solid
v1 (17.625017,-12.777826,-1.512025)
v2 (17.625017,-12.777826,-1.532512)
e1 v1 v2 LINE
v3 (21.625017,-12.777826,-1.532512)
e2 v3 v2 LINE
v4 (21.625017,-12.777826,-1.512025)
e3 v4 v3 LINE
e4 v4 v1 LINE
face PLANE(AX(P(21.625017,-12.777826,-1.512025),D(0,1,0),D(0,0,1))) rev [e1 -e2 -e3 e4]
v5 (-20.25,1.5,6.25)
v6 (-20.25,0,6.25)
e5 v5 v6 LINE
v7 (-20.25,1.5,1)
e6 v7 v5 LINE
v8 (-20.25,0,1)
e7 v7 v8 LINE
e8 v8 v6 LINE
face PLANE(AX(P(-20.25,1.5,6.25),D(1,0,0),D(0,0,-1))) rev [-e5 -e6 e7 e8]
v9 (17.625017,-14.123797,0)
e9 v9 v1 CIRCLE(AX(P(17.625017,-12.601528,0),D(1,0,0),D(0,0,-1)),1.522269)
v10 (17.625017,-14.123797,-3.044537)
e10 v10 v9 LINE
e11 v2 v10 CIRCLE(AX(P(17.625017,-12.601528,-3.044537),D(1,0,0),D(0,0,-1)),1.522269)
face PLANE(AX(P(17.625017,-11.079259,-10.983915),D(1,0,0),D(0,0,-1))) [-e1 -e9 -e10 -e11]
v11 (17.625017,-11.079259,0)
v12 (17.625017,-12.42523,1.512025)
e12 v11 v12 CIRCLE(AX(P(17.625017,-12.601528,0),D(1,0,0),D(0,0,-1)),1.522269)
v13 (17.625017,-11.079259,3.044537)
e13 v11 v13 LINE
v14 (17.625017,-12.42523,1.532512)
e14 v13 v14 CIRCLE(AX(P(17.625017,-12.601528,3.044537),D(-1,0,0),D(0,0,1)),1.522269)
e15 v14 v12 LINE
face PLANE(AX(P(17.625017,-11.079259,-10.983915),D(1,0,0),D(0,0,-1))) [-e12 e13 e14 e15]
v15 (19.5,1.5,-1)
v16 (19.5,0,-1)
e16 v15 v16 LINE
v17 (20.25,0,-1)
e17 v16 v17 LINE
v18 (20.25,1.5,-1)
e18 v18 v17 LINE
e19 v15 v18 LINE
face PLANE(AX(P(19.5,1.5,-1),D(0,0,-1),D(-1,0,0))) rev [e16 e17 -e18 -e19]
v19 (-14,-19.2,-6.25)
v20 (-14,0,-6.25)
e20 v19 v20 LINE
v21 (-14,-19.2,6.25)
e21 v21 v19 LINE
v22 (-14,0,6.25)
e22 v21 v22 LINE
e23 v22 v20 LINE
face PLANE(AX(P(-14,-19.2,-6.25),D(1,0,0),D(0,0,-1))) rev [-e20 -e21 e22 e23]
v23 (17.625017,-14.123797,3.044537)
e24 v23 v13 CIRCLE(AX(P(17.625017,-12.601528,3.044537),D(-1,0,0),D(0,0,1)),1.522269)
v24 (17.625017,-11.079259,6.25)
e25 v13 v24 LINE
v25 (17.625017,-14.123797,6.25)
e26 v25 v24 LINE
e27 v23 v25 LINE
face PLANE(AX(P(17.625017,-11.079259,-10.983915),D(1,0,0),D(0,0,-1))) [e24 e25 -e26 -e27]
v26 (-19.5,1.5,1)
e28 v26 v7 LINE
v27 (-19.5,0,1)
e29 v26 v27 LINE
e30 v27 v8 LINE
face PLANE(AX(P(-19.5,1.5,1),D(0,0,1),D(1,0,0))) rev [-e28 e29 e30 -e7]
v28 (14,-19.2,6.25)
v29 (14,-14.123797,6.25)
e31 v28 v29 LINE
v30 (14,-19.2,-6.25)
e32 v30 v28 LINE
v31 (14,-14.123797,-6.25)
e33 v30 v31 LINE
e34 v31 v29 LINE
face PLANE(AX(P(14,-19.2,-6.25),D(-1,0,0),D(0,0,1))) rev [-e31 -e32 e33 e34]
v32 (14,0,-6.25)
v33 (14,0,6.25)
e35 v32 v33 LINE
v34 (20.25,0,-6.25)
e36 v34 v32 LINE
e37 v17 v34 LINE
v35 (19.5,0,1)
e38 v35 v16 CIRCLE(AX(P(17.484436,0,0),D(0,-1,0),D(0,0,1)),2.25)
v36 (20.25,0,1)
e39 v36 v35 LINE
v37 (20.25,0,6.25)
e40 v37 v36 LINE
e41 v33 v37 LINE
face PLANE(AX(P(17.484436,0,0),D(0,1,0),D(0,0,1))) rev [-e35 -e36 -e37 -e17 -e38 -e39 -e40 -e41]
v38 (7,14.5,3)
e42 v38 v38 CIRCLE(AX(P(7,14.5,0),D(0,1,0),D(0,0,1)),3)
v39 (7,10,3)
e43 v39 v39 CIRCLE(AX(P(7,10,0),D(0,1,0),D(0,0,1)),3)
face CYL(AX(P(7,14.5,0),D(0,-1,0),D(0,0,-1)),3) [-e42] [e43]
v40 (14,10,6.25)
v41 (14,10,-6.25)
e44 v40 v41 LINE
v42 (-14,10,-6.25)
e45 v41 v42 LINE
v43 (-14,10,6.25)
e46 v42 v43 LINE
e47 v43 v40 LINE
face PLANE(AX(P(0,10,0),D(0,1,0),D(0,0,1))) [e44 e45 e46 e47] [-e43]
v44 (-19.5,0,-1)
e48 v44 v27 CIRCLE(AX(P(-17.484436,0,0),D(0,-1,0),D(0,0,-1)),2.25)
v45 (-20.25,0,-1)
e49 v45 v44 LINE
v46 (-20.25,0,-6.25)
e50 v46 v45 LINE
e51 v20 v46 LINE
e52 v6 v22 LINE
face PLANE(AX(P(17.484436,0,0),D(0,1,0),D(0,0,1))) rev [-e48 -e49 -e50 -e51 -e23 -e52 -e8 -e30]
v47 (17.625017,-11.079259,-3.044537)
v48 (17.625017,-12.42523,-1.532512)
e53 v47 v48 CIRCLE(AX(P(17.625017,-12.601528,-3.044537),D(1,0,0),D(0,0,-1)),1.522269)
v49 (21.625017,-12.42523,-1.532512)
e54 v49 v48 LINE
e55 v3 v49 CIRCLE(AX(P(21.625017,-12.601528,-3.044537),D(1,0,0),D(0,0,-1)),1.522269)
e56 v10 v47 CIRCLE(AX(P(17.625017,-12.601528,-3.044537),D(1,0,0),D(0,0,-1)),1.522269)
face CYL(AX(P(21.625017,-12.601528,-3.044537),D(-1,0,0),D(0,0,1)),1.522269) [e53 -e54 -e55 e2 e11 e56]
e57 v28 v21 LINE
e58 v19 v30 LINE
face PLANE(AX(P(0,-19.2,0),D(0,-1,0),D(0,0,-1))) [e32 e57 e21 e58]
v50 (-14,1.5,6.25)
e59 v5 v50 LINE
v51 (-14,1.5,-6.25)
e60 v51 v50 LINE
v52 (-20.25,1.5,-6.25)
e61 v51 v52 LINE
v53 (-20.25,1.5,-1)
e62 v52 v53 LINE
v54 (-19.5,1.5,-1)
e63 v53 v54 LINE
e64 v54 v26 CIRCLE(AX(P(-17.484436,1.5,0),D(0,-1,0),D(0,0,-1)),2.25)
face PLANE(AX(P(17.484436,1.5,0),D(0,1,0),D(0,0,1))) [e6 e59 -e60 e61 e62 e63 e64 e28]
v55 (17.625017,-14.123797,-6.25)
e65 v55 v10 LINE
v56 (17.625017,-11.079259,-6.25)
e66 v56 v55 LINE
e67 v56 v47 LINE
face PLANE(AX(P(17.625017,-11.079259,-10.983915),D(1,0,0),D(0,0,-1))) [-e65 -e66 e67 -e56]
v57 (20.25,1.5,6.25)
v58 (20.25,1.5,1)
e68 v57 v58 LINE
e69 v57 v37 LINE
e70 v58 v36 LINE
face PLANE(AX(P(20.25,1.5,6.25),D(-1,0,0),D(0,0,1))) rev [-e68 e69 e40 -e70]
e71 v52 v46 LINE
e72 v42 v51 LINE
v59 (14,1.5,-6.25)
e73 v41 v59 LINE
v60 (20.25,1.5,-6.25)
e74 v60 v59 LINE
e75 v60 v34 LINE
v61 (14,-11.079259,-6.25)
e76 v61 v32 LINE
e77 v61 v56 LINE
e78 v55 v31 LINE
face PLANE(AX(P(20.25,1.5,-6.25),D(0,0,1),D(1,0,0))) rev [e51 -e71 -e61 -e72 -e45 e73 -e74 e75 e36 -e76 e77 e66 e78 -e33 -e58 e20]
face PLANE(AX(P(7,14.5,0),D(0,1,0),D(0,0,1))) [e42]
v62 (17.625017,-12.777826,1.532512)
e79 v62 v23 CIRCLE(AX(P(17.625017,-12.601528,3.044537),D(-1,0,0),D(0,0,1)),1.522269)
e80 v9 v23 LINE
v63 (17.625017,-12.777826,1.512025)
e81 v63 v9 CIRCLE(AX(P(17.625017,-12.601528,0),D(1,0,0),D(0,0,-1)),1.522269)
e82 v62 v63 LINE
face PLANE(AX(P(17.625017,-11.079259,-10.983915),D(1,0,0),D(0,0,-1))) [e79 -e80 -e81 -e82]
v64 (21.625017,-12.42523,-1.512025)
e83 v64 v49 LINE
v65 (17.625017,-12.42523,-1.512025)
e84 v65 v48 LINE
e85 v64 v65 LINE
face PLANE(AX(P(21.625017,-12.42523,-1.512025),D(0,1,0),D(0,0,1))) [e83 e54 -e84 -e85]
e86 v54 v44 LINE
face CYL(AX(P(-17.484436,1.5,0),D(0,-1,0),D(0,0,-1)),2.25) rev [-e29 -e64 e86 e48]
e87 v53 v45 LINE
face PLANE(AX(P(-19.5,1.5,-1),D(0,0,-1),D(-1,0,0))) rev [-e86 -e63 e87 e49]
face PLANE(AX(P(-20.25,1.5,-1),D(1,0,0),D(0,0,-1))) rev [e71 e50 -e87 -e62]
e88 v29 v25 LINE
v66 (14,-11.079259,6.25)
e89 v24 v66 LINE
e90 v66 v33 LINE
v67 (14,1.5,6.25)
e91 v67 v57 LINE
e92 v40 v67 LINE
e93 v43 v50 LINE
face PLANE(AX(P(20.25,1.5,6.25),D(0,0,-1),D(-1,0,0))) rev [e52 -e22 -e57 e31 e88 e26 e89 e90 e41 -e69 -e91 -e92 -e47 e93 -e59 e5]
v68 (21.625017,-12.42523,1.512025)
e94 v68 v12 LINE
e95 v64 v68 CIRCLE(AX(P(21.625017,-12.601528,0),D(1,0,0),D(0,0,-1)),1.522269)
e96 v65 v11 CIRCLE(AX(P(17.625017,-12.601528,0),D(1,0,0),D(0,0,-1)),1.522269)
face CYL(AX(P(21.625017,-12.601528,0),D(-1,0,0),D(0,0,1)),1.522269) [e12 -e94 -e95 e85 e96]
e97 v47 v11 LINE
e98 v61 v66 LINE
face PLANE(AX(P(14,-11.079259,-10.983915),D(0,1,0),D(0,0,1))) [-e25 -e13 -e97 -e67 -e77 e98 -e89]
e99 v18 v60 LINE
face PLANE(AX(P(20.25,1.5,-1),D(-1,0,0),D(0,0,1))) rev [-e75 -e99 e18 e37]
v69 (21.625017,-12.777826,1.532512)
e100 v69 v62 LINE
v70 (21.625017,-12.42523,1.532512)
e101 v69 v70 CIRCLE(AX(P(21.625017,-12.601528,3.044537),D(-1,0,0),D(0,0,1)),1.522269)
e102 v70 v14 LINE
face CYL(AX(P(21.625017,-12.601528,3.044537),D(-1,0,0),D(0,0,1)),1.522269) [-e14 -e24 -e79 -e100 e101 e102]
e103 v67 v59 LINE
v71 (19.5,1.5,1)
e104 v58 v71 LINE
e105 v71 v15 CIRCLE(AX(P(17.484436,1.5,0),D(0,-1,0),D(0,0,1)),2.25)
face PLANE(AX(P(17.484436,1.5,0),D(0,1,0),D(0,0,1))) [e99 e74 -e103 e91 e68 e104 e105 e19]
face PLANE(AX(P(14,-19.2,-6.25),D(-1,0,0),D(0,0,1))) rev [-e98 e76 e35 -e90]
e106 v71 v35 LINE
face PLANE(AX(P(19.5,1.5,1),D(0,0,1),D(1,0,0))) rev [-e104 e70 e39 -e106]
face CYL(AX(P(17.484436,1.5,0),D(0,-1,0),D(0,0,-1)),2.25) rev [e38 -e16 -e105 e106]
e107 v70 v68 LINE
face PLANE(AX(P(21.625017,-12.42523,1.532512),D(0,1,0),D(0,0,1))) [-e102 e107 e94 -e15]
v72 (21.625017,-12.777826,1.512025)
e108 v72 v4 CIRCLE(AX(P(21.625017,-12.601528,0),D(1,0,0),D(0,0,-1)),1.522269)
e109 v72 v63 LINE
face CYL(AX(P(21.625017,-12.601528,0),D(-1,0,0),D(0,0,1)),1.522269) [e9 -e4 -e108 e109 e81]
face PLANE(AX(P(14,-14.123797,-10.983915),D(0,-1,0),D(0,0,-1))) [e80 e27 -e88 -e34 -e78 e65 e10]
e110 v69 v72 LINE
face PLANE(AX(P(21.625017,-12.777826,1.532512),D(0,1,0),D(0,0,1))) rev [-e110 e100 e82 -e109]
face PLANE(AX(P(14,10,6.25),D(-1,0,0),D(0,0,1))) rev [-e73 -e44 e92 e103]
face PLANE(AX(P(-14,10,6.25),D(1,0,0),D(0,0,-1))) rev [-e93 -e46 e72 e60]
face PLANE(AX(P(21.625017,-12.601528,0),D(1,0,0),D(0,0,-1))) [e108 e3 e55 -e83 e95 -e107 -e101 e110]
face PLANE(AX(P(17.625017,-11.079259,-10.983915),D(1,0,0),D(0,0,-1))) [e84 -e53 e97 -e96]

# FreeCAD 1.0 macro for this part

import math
import FreeCAD as App
import Part
import Sketcher
Q = App.Units.Quantity


def add_polygon(sketch, points):
    """Adds a closed chain of lines whose ends are joined by coincident constraints."""
    first, n = sketch.GeometryCount, len(points)
    for a, b in zip(points, points[1:] + points[:1]):
        sketch.addGeometry(Part.LineSegment(App.Vector(*a, 0), App.Vector(*b, 0)), False)
    for i in range(n):
        sketch.addConstraint(Sketcher.Constraint("Coincident", first + i, 2, first + (i + 1) % n, 1))

doc = App.newDocument("Part")
body = doc.addObject("PartDesign::Body", "Body")

# Sketch on XZ plane
sketch1 = body.newObject("Sketcher::SketchObject", "Sketch")
sketch1.AttachmentSupport = (doc.getObject("XZ_Plane"), [""])
sketch1.MapMode = "FlatFace"
sketch1.addGeometry(Part.LineSegment(App.Vector(-20.2, 6.2, 0), App.Vector(20.2, 6.2, 0)), False)
sketch1.addGeometry(Part.LineSegment(App.Vector(20.2, 6.2, 0), App.Vector(20.2, 1, 0)), False)
sketch1.addGeometry(Part.LineSegment(App.Vector(20.2, 1, 0), App.Vector(19.5, 1, 0)), False)
sketch1.addGeometry(Part.ArcOfCircle(Part.Circle(App.Vector(17.5, 0, 0), App.Vector(0, 0, 1), 2.2), math.radians(26), math.radians(334)), False)
sketch1.addGeometry(Part.LineSegment(App.Vector(19.5, -1, 0), App.Vector(20.2, -1, 0)), False)
sketch1.addGeometry(Part.LineSegment(App.Vector(20.2, -1, 0), App.Vector(20.2, -6.2, 0)), False)
sketch1.addGeometry(Part.LineSegment(App.Vector(20.2, -6.2, 0), App.Vector(-20.2, -6.2, 0)), False)
sketch1.addGeometry(Part.LineSegment(App.Vector(-20.2, -6.2, 0), App.Vector(-20.2, -1, 0)), False)
sketch1.addGeometry(Part.LineSegment(App.Vector(-20.2, -1, 0), App.Vector(-19.5, -1, 0)), False)
sketch1.addGeometry(Part.ArcOfCircle(Part.Circle(App.Vector(-17.5, 0, 0), App.Vector(0, 0, 1), 2.2), math.radians(-154), math.radians(154)), False)
sketch1.addGeometry(Part.LineSegment(App.Vector(-19.5, 1, 0), App.Vector(-20.2, 1, 0)), False)
sketch1.addGeometry(Part.LineSegment(App.Vector(-20.2, 1, 0), App.Vector(-20.2, 6.2, 0)), False)
sketch1.addConstraint(Sketcher.Constraint("Coincident", 0, 2, 1, 1))
sketch1.addConstraint(Sketcher.Constraint("Coincident", 1, 2, 2, 1))
sketch1.addConstraint(Sketcher.Constraint("Coincident", 2, 2, 3, 1))
sketch1.addConstraint(Sketcher.Constraint("Coincident", 3, 2, 4, 1))
sketch1.addConstraint(Sketcher.Constraint("Coincident", 4, 2, 5, 1))
sketch1.addConstraint(Sketcher.Constraint("Coincident", 5, 2, 6, 1))
sketch1.addConstraint(Sketcher.Constraint("Coincident", 6, 2, 7, 1))
sketch1.addConstraint(Sketcher.Constraint("Coincident", 7, 2, 8, 1))
sketch1.addConstraint(Sketcher.Constraint("Coincident", 8, 2, 9, 1))
sketch1.addConstraint(Sketcher.Constraint("Coincident", 9, 2, 10, 1))
sketch1.addConstraint(Sketcher.Constraint("Coincident", 10, 2, 11, 1))
sketch1.addConstraint(Sketcher.Constraint("Coincident", 11, 2, 0, 1))
sketch1.addConstraint(Sketcher.Constraint("Horizontal", 0))
sketch1.addConstraint(Sketcher.Constraint("Vertical", 1))
sketch1.addConstraint(Sketcher.Constraint("Horizontal", 2))
sketch1.addConstraint(Sketcher.Constraint("Horizontal", 4))
sketch1.addConstraint(Sketcher.Constraint("Vertical", 5))
sketch1.addConstraint(Sketcher.Constraint("Horizontal", 6))
sketch1.addConstraint(Sketcher.Constraint("Vertical", 7))
sketch1.addConstraint(Sketcher.Constraint("Horizontal", 8))
sketch1.addConstraint(Sketcher.Constraint("Horizontal", 10))
sketch1.addConstraint(Sketcher.Constraint("Vertical", 11))
sketch1.addConstraint(Sketcher.Constraint("Equal", 3, 9))
sketch1.addConstraint(Sketcher.Constraint("Symmetric", 3, 3, 9, 3, -1, 1))
sketch1.addConstraint(Sketcher.Constraint("Symmetric", 0, 2, 6, 2, -1, 1))
sketch1.addConstraint(Sketcher.Constraint("Symmetric", 4, 2, 10, 2, -1, 1))
sketch1.addConstraint(Sketcher.Constraint("Symmetric", 4, 2, 7, 2, -2))
sketch1.addConstraint(Sketcher.Constraint("Symmetric", 2, 2, 9, 2, -2))
sketch1.addConstraint(Sketcher.Constraint("Radius", 3, Q("2.25 mm")))
sketch1.addConstraint(Sketcher.Constraint("DistanceX", 0, 1, 0, 2, Q("40.5 mm")))
sketch1.addConstraint(Sketcher.Constraint("DistanceY", -1, 1, 1, 2, Q("1 mm")))
sketch1.addConstraint(Sketcher.Constraint("DistanceX", 8, 2, 3, 2, Q("39 mm")))
sketch1.addConstraint(Sketcher.Constraint("DistanceY", 1, 2, 1, 1, Q("5.25 mm")))
pad1 = body.newObject("PartDesign::Pad", "Pad")
pad1.Profile = sketch1
pad1.Length = 1.5
pad1.Reversed = True

# Sketch on XZ plane
sketch2 = body.newObject("Sketcher::SketchObject", "Sketch001")
sketch2.AttachmentSupport = (doc.getObject("XZ_Plane"), [""])
sketch2.MapMode = "FlatFace"
sketch2.AttachmentOffset = App.Placement(App.Vector(0, 0, -1.5), App.Rotation())
add_polygon(sketch2, [(-14, -6), (-14, 6), (14, 6), (14, -6)])  # lines 0-3
sketch2.addConstraint(Sketcher.Constraint("Vertical", 0))
sketch2.addConstraint(Sketcher.Constraint("Horizontal", 1))
sketch2.addConstraint(Sketcher.Constraint("Vertical", 2))
sketch2.addConstraint(Sketcher.Constraint("Horizontal", 3))
sketch2.addConstraint(Sketcher.Constraint("Symmetric", 0, 2, 2, 2, -1, 1))
sketch2.addConstraint(Sketcher.Constraint("DistanceX", 1, 1, 1, 2, Q("28 mm")))
sketch2.addConstraint(Sketcher.Constraint("DistanceY", 0, 1, 0, 2, Q("12.5 mm")))
pad2 = body.newObject("PartDesign::Pad", "Pad001")
pad2.Profile = sketch2
pad2.Length = 8.5
pad2.Reversed = True

# Sketch on XZ plane
sketch3 = body.newObject("Sketcher::SketchObject", "Sketch002")
sketch3.AttachmentSupport = (doc.getObject("XZ_Plane"), [""])
sketch3.MapMode = "FlatFace"
sketch3.AttachmentOffset = App.Placement(App.Vector(0, 0, -10), App.Rotation())
sketch3.addGeometry(Part.Circle(App.Vector(7, 0, 0), App.Vector(0, 0, 1), 3), False)
sketch3.addConstraint(Sketcher.Constraint("PointOnObject", 0, 3, -1))
sketch3.addConstraint(Sketcher.Constraint("Diameter", 0, Q("6 mm")))
sketch3.addConstraint(Sketcher.Constraint("DistanceX", -1, 1, 0, 3, Q("7 mm")))
pad3 = body.newObject("PartDesign::Pad", "Pad002")
pad3.Profile = sketch3
pad3.Length = 4.5
pad3.Reversed = True

# Sketch on XZ plane
sketch4 = body.newObject("Sketcher::SketchObject", "Sketch003")
sketch4.AttachmentSupport = (doc.getObject("XZ_Plane"), [""])
sketch4.MapMode = "FlatFace"
add_polygon(sketch4, [(-14, 6), (-14, -6), (14, -6), (14, 6)])  # lines 0-3
sketch4.addConstraint(Sketcher.Constraint("Vertical", 0))
sketch4.addConstraint(Sketcher.Constraint("Horizontal", 1))
sketch4.addConstraint(Sketcher.Constraint("Vertical", 2))
sketch4.addConstraint(Sketcher.Constraint("Horizontal", 3))
sketch4.addConstraint(Sketcher.Constraint("Symmetric", 0, 2, 2, 2, -1, 1))
sketch4.addConstraint(Sketcher.Constraint("DistanceX", 1, 1, 1, 2, Q("28 mm")))
sketch4.addConstraint(Sketcher.Constraint("DistanceY", 0, 2, 0, 1, Q("12.5 mm")))
pad4 = body.newObject("PartDesign::Pad", "Pad003")
pad4.Profile = sketch4
pad4.Length = 19.2

# Sketch on XY plane
sketch5 = body.newObject("Sketcher::SketchObject", "Sketch004")
sketch5.AttachmentSupport = (doc.getObject("XY_Plane"), [""])
sketch5.MapMode = "FlatFace"
sketch5.AttachmentOffset = App.Placement(App.Vector(0, 0, 6.25), App.Rotation())
add_polygon(sketch5, [(14, -11.1), (14, -14.1), (17.6, -14.1), (17.6, -11.1)])  # lines 0-3
sketch5.addConstraint(Sketcher.Constraint("Vertical", 0))
sketch5.addConstraint(Sketcher.Constraint("Horizontal", 1))
sketch5.addConstraint(Sketcher.Constraint("Vertical", 2))
sketch5.addConstraint(Sketcher.Constraint("Horizontal", 3))
sketch5.addConstraint(Sketcher.Constraint("DistanceX", -1, 1, 0, 2, Q("14 mm")))
sketch5.addConstraint(Sketcher.Constraint("DistanceX", 1, 1, 1, 2, Q("3.625017 mm")))
sketch5.addConstraint(Sketcher.Constraint("DistanceY", 0, 2, 0, 1, Q("3.044537 mm")))
sketch5.addConstraint(Sketcher.Constraint("DistanceY", 2, 2, -1, 1, Q("11.079259 mm")))
pad5 = body.newObject("PartDesign::Pad", "Pad004")
pad5.Profile = sketch5
pad5.Length = 12.5
pad5.Reversed = True

# Sketch on YZ plane
sketch6 = body.newObject("Sketcher::SketchObject", "Sketch005")
sketch6.AttachmentSupport = (doc.getObject("YZ_Plane"), [""])
sketch6.MapMode = "FlatFace"
sketch6.AttachmentOffset = App.Placement(App.Vector(0, 0, 17.625017), App.Rotation())
sketch6.addGeometry(Part.LineSegment(App.Vector(-12.778, 1.533, 0), App.Vector(-12.778, 1.512, 0)), False)
sketch6.addGeometry(Part.ArcOfCircle(Part.Circle(App.Vector(-12.602, 0, 0), App.Vector(0, 0, 1), 1.522), math.radians(97), math.radians(263)), False)
sketch6.addGeometry(Part.LineSegment(App.Vector(-12.778, -1.512, 0), App.Vector(-12.778, -1.533, 0)), False)
sketch6.addGeometry(Part.ArcOfCircle(Part.Circle(App.Vector(-12.602, -3.045, 0), App.Vector(0, 0, 1), 1.522), math.radians(97), math.radians(443)), False)
sketch6.addGeometry(Part.LineSegment(App.Vector(-12.425, -1.533, 0), App.Vector(-12.425, -1.512, 0)), False)
sketch6.addGeometry(Part.ArcOfCircle(Part.Circle(App.Vector(-12.602, 0, 0), App.Vector(0, 0, 1), 1.522), math.radians(-83), math.radians(83)), False)
sketch6.addGeometry(Part.LineSegment(App.Vector(-12.425, 1.512, 0), App.Vector(-12.425, 1.533, 0)), False)
sketch6.addGeometry(Part.ArcOfCircle(Part.Circle(App.Vector(-12.602, 3.045, 0), App.Vector(0, 0, 1), 1.522), math.radians(-83), math.radians(263)), False)
sketch6.addConstraint(Sketcher.Constraint("Coincident", 0, 2, 1, 1))
sketch6.addConstraint(Sketcher.Constraint("Coincident", 1, 2, 2, 1))
sketch6.addConstraint(Sketcher.Constraint("Coincident", 2, 2, 3, 1))
sketch6.addConstraint(Sketcher.Constraint("Coincident", 3, 2, 4, 1))
sketch6.addConstraint(Sketcher.Constraint("Coincident", 4, 2, 5, 1))
sketch6.addConstraint(Sketcher.Constraint("Coincident", 5, 2, 6, 1))
sketch6.addConstraint(Sketcher.Constraint("Coincident", 6, 2, 7, 1))
sketch6.addConstraint(Sketcher.Constraint("Coincident", 7, 2, 0, 1))
sketch6.addConstraint(Sketcher.Constraint("Vertical", 0))
sketch6.addConstraint(Sketcher.Constraint("Vertical", 2))
sketch6.addConstraint(Sketcher.Constraint("Vertical", 4))
sketch6.addConstraint(Sketcher.Constraint("Vertical", 6))
sketch6.addConstraint(Sketcher.Constraint("Coincident", 5, 3, 1, 3))
sketch6.addConstraint(Sketcher.Constraint("Equal", 1, 3))
sketch6.addConstraint(Sketcher.Constraint("Equal", 3, 5))
sketch6.addConstraint(Sketcher.Constraint("Equal", 5, 7))
sketch6.addConstraint(Sketcher.Constraint("Symmetric", 3, 3, 7, 3, -1))
sketch6.addConstraint(Sketcher.Constraint("Symmetric", 0, 2, 1, 2, -1))
sketch6.addConstraint(Sketcher.Constraint("Horizontal", 2, 2, 3, 2))
sketch6.addConstraint(Sketcher.Constraint("Horizontal", 1, 2, 4, 2))
sketch6.addConstraint(Sketcher.Constraint("Horizontal", 0, 2, 5, 2))
sketch6.addConstraint(Sketcher.Constraint("Radius", 1, Q("1.522269 mm")))
sketch6.addConstraint(Sketcher.Constraint("DistanceY", 0, 2, 0, 1, Q("0.020486 mm")))
sketch6.addConstraint(Sketcher.Constraint("DistanceY", 2, 2, -1, 1, Q("1.532512 mm")))
sketch6.addConstraint(Sketcher.Constraint("DistanceX", 3, 2, -1, 1, Q("12.42523 mm")))
pad6 = body.newObject("PartDesign::Pad", "Pad005")
pad6.Profile = sketch6
pad6.Length = 4

doc.recompute()
